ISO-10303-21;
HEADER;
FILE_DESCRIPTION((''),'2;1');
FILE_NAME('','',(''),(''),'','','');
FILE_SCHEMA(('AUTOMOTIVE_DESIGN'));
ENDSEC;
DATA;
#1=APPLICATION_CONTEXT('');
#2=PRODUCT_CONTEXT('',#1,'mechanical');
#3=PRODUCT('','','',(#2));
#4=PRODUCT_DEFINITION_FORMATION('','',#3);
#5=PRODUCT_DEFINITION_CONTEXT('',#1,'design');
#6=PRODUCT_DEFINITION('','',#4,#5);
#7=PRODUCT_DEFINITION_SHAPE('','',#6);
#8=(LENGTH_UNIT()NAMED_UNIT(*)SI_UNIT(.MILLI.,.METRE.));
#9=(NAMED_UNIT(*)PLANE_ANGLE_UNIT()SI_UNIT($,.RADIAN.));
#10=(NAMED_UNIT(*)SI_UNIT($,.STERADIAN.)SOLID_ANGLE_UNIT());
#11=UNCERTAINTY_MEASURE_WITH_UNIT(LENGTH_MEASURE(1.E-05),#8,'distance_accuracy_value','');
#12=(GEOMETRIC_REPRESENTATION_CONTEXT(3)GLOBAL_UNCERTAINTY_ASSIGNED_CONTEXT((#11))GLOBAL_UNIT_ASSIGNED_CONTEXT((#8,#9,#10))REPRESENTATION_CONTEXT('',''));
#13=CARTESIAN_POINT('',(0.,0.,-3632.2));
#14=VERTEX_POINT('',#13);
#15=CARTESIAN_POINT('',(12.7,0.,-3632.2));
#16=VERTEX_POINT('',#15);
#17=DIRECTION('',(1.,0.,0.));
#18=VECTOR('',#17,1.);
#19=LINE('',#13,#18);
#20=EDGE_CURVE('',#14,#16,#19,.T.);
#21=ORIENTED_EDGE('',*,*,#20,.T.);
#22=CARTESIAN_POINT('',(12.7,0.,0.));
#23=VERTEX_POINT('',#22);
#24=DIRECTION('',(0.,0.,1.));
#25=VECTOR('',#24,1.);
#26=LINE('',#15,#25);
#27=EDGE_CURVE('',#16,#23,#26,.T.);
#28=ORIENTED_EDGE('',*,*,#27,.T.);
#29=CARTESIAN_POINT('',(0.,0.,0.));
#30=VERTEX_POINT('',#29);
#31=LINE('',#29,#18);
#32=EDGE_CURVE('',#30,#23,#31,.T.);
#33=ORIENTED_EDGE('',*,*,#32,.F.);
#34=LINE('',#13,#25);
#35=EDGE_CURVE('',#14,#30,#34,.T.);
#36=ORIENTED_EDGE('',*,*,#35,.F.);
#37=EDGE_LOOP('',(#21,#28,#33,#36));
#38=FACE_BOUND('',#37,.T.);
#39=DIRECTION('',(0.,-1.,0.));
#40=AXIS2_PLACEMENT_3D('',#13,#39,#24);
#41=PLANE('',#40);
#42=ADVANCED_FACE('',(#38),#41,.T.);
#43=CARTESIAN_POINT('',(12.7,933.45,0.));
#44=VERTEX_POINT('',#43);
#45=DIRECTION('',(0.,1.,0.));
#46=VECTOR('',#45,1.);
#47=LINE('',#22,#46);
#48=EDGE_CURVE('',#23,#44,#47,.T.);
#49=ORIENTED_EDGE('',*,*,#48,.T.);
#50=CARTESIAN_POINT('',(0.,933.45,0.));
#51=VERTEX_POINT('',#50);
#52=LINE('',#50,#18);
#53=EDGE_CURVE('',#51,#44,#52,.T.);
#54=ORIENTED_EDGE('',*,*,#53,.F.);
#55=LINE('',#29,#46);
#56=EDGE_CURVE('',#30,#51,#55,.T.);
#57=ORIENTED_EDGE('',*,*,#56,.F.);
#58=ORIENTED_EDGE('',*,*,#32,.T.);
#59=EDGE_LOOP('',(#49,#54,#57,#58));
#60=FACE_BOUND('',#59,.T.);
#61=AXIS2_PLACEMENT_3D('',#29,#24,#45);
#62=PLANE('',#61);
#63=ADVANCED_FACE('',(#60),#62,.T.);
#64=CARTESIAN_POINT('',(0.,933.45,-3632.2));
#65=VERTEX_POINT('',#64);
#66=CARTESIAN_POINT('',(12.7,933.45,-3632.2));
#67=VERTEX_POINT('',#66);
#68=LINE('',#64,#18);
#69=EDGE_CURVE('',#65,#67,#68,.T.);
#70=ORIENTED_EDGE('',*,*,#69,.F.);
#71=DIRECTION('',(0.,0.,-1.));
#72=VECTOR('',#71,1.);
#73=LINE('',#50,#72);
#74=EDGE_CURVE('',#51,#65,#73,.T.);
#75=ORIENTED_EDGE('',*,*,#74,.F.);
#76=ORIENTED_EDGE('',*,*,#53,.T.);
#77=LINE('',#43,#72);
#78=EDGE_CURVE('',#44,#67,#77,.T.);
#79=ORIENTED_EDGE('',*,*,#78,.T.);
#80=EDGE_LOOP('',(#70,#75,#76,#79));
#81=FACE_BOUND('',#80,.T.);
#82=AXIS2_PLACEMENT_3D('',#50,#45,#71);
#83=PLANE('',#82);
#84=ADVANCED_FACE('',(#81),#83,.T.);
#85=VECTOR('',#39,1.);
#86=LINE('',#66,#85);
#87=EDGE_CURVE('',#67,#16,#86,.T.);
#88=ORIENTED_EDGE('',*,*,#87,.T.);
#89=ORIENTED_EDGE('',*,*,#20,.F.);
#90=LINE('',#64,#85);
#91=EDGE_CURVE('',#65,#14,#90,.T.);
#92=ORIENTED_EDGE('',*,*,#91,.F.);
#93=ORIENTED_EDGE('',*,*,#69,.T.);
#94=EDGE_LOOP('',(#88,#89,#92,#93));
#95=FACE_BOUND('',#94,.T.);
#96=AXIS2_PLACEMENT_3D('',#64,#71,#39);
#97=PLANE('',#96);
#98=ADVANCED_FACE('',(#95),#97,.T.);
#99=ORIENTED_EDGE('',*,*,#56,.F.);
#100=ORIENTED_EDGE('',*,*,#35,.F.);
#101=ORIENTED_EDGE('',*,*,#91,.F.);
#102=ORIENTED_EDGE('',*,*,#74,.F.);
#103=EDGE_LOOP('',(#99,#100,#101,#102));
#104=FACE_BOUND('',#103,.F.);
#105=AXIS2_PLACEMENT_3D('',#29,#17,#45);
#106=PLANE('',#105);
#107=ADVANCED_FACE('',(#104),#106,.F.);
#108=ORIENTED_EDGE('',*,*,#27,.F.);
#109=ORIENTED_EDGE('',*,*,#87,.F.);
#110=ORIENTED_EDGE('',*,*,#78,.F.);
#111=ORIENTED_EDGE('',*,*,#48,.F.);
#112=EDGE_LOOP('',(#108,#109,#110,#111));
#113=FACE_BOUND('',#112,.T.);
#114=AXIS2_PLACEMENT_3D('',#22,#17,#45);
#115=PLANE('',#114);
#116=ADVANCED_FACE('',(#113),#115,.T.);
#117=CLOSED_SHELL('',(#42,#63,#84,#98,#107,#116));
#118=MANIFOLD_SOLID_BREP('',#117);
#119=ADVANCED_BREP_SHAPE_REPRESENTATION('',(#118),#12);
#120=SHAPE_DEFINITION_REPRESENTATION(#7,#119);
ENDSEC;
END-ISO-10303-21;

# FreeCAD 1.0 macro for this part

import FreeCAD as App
import Part
import Sketcher
from FreeCAD import Vector
Q = App.Units.Quantity


def add_polygon(sketch, points):
    """Adds a closed chain of lines whose ends are joined by coincident constraints."""
    first, n = sketch.GeometryCount, len(points)
    for a, b in zip(points, points[1:] + points[:1]):
        sketch.addGeometry(Part.LineSegment(App.Vector(*a, 0), App.Vector(*b, 0)), False)
    for i in range(n):
        sketch.addConstraint(Sketcher.Constraint("Coincident", first + i, 2, first + (i + 1) % n, 1))

doc = App.newDocument("Part")
params = doc.addObject("Spreadsheet::Sheet", "Params")
for row, (alias, value) in enumerate([
    ("sketch1_height", "143 in"),
    ("sketch1_width", "36.75 in"),
    ("pad1_length", "0.5 in"),
], start=1):
    params.set(f"A{row}", alias)
    params.set(f"B{row}", "=" + value)
    params.setAlias(f"B{row}", alias)

body = doc.addObject("PartDesign::Body", "Body")

sketch1 = body.newObject("Sketcher::SketchObject", "Sketch")
sketch1.AttachmentSupport = (doc.getObject("YZ_Plane"), [""])
sketch1.MapMode = "FlatFace"
add_polygon(sketch1, [(933, 0), (0, 0), (0, -3632), (933, -3632)])
sketch1.addConstraint([
    Sketcher.Constraint("Horizontal", 0),
    Sketcher.Constraint("Vertical", 1),
    Sketcher.Constraint("Horizontal", 2),
    Sketcher.Constraint("Vertical", 3),
    Sketcher.Constraint("Coincident", 0, 2, -1, 1),
    Sketcher.Constraint("DistanceY", 1, 2, 1, 1, Q("143 in")),
    Sketcher.Constraint("DistanceX", 0, 2, 0, 1, Q("36.75 in")),
])
sketch1.setExpression("Constraints[9]", "Params.sketch1_height")
sketch1.setExpression("Constraints[10]", "Params.sketch1_width")
pad1 = body.newObject("PartDesign::Pad", "Pad")
pad1.Profile = sketch1
pad1.setExpression("Length", "Params.pad1_length")

doc.recompute()
